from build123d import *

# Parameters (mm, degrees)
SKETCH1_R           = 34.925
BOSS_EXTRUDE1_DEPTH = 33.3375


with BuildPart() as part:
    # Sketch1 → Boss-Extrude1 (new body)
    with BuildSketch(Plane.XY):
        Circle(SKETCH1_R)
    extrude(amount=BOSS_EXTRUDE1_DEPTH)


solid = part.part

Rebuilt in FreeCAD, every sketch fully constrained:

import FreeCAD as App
import Part
import Sketcher

V = App.Vector
Q = App.Units.Quantity

doc = App.newDocument("Part")
body = doc.addObject("PartDesign::Body", "Body")

# Sketch on XY plane
sketch1 = body.newObject("Sketcher::SketchObject", "Sketch")
sketch1.AttachmentSupport = (doc.getObject("XY_Plane"), [""])
sketch1.MapMode = "FlatFace"
sketch1.addGeometry(Part.Circle(V(0, 0, 0), V(0, 0, 1), 34.925), False)
sketch1.addConstraint([
    Sketcher.Constraint("Coincident", 0, 3, -1, 1),
    Sketcher.Constraint("Diameter", 0, Q("2.75 in")),
])
pad1 = body.newObject("PartDesign::Pad", "Pad")
pad1.Profile = sketch1
pad1.Length = Q("1.3125 in")

doc.recompute()
